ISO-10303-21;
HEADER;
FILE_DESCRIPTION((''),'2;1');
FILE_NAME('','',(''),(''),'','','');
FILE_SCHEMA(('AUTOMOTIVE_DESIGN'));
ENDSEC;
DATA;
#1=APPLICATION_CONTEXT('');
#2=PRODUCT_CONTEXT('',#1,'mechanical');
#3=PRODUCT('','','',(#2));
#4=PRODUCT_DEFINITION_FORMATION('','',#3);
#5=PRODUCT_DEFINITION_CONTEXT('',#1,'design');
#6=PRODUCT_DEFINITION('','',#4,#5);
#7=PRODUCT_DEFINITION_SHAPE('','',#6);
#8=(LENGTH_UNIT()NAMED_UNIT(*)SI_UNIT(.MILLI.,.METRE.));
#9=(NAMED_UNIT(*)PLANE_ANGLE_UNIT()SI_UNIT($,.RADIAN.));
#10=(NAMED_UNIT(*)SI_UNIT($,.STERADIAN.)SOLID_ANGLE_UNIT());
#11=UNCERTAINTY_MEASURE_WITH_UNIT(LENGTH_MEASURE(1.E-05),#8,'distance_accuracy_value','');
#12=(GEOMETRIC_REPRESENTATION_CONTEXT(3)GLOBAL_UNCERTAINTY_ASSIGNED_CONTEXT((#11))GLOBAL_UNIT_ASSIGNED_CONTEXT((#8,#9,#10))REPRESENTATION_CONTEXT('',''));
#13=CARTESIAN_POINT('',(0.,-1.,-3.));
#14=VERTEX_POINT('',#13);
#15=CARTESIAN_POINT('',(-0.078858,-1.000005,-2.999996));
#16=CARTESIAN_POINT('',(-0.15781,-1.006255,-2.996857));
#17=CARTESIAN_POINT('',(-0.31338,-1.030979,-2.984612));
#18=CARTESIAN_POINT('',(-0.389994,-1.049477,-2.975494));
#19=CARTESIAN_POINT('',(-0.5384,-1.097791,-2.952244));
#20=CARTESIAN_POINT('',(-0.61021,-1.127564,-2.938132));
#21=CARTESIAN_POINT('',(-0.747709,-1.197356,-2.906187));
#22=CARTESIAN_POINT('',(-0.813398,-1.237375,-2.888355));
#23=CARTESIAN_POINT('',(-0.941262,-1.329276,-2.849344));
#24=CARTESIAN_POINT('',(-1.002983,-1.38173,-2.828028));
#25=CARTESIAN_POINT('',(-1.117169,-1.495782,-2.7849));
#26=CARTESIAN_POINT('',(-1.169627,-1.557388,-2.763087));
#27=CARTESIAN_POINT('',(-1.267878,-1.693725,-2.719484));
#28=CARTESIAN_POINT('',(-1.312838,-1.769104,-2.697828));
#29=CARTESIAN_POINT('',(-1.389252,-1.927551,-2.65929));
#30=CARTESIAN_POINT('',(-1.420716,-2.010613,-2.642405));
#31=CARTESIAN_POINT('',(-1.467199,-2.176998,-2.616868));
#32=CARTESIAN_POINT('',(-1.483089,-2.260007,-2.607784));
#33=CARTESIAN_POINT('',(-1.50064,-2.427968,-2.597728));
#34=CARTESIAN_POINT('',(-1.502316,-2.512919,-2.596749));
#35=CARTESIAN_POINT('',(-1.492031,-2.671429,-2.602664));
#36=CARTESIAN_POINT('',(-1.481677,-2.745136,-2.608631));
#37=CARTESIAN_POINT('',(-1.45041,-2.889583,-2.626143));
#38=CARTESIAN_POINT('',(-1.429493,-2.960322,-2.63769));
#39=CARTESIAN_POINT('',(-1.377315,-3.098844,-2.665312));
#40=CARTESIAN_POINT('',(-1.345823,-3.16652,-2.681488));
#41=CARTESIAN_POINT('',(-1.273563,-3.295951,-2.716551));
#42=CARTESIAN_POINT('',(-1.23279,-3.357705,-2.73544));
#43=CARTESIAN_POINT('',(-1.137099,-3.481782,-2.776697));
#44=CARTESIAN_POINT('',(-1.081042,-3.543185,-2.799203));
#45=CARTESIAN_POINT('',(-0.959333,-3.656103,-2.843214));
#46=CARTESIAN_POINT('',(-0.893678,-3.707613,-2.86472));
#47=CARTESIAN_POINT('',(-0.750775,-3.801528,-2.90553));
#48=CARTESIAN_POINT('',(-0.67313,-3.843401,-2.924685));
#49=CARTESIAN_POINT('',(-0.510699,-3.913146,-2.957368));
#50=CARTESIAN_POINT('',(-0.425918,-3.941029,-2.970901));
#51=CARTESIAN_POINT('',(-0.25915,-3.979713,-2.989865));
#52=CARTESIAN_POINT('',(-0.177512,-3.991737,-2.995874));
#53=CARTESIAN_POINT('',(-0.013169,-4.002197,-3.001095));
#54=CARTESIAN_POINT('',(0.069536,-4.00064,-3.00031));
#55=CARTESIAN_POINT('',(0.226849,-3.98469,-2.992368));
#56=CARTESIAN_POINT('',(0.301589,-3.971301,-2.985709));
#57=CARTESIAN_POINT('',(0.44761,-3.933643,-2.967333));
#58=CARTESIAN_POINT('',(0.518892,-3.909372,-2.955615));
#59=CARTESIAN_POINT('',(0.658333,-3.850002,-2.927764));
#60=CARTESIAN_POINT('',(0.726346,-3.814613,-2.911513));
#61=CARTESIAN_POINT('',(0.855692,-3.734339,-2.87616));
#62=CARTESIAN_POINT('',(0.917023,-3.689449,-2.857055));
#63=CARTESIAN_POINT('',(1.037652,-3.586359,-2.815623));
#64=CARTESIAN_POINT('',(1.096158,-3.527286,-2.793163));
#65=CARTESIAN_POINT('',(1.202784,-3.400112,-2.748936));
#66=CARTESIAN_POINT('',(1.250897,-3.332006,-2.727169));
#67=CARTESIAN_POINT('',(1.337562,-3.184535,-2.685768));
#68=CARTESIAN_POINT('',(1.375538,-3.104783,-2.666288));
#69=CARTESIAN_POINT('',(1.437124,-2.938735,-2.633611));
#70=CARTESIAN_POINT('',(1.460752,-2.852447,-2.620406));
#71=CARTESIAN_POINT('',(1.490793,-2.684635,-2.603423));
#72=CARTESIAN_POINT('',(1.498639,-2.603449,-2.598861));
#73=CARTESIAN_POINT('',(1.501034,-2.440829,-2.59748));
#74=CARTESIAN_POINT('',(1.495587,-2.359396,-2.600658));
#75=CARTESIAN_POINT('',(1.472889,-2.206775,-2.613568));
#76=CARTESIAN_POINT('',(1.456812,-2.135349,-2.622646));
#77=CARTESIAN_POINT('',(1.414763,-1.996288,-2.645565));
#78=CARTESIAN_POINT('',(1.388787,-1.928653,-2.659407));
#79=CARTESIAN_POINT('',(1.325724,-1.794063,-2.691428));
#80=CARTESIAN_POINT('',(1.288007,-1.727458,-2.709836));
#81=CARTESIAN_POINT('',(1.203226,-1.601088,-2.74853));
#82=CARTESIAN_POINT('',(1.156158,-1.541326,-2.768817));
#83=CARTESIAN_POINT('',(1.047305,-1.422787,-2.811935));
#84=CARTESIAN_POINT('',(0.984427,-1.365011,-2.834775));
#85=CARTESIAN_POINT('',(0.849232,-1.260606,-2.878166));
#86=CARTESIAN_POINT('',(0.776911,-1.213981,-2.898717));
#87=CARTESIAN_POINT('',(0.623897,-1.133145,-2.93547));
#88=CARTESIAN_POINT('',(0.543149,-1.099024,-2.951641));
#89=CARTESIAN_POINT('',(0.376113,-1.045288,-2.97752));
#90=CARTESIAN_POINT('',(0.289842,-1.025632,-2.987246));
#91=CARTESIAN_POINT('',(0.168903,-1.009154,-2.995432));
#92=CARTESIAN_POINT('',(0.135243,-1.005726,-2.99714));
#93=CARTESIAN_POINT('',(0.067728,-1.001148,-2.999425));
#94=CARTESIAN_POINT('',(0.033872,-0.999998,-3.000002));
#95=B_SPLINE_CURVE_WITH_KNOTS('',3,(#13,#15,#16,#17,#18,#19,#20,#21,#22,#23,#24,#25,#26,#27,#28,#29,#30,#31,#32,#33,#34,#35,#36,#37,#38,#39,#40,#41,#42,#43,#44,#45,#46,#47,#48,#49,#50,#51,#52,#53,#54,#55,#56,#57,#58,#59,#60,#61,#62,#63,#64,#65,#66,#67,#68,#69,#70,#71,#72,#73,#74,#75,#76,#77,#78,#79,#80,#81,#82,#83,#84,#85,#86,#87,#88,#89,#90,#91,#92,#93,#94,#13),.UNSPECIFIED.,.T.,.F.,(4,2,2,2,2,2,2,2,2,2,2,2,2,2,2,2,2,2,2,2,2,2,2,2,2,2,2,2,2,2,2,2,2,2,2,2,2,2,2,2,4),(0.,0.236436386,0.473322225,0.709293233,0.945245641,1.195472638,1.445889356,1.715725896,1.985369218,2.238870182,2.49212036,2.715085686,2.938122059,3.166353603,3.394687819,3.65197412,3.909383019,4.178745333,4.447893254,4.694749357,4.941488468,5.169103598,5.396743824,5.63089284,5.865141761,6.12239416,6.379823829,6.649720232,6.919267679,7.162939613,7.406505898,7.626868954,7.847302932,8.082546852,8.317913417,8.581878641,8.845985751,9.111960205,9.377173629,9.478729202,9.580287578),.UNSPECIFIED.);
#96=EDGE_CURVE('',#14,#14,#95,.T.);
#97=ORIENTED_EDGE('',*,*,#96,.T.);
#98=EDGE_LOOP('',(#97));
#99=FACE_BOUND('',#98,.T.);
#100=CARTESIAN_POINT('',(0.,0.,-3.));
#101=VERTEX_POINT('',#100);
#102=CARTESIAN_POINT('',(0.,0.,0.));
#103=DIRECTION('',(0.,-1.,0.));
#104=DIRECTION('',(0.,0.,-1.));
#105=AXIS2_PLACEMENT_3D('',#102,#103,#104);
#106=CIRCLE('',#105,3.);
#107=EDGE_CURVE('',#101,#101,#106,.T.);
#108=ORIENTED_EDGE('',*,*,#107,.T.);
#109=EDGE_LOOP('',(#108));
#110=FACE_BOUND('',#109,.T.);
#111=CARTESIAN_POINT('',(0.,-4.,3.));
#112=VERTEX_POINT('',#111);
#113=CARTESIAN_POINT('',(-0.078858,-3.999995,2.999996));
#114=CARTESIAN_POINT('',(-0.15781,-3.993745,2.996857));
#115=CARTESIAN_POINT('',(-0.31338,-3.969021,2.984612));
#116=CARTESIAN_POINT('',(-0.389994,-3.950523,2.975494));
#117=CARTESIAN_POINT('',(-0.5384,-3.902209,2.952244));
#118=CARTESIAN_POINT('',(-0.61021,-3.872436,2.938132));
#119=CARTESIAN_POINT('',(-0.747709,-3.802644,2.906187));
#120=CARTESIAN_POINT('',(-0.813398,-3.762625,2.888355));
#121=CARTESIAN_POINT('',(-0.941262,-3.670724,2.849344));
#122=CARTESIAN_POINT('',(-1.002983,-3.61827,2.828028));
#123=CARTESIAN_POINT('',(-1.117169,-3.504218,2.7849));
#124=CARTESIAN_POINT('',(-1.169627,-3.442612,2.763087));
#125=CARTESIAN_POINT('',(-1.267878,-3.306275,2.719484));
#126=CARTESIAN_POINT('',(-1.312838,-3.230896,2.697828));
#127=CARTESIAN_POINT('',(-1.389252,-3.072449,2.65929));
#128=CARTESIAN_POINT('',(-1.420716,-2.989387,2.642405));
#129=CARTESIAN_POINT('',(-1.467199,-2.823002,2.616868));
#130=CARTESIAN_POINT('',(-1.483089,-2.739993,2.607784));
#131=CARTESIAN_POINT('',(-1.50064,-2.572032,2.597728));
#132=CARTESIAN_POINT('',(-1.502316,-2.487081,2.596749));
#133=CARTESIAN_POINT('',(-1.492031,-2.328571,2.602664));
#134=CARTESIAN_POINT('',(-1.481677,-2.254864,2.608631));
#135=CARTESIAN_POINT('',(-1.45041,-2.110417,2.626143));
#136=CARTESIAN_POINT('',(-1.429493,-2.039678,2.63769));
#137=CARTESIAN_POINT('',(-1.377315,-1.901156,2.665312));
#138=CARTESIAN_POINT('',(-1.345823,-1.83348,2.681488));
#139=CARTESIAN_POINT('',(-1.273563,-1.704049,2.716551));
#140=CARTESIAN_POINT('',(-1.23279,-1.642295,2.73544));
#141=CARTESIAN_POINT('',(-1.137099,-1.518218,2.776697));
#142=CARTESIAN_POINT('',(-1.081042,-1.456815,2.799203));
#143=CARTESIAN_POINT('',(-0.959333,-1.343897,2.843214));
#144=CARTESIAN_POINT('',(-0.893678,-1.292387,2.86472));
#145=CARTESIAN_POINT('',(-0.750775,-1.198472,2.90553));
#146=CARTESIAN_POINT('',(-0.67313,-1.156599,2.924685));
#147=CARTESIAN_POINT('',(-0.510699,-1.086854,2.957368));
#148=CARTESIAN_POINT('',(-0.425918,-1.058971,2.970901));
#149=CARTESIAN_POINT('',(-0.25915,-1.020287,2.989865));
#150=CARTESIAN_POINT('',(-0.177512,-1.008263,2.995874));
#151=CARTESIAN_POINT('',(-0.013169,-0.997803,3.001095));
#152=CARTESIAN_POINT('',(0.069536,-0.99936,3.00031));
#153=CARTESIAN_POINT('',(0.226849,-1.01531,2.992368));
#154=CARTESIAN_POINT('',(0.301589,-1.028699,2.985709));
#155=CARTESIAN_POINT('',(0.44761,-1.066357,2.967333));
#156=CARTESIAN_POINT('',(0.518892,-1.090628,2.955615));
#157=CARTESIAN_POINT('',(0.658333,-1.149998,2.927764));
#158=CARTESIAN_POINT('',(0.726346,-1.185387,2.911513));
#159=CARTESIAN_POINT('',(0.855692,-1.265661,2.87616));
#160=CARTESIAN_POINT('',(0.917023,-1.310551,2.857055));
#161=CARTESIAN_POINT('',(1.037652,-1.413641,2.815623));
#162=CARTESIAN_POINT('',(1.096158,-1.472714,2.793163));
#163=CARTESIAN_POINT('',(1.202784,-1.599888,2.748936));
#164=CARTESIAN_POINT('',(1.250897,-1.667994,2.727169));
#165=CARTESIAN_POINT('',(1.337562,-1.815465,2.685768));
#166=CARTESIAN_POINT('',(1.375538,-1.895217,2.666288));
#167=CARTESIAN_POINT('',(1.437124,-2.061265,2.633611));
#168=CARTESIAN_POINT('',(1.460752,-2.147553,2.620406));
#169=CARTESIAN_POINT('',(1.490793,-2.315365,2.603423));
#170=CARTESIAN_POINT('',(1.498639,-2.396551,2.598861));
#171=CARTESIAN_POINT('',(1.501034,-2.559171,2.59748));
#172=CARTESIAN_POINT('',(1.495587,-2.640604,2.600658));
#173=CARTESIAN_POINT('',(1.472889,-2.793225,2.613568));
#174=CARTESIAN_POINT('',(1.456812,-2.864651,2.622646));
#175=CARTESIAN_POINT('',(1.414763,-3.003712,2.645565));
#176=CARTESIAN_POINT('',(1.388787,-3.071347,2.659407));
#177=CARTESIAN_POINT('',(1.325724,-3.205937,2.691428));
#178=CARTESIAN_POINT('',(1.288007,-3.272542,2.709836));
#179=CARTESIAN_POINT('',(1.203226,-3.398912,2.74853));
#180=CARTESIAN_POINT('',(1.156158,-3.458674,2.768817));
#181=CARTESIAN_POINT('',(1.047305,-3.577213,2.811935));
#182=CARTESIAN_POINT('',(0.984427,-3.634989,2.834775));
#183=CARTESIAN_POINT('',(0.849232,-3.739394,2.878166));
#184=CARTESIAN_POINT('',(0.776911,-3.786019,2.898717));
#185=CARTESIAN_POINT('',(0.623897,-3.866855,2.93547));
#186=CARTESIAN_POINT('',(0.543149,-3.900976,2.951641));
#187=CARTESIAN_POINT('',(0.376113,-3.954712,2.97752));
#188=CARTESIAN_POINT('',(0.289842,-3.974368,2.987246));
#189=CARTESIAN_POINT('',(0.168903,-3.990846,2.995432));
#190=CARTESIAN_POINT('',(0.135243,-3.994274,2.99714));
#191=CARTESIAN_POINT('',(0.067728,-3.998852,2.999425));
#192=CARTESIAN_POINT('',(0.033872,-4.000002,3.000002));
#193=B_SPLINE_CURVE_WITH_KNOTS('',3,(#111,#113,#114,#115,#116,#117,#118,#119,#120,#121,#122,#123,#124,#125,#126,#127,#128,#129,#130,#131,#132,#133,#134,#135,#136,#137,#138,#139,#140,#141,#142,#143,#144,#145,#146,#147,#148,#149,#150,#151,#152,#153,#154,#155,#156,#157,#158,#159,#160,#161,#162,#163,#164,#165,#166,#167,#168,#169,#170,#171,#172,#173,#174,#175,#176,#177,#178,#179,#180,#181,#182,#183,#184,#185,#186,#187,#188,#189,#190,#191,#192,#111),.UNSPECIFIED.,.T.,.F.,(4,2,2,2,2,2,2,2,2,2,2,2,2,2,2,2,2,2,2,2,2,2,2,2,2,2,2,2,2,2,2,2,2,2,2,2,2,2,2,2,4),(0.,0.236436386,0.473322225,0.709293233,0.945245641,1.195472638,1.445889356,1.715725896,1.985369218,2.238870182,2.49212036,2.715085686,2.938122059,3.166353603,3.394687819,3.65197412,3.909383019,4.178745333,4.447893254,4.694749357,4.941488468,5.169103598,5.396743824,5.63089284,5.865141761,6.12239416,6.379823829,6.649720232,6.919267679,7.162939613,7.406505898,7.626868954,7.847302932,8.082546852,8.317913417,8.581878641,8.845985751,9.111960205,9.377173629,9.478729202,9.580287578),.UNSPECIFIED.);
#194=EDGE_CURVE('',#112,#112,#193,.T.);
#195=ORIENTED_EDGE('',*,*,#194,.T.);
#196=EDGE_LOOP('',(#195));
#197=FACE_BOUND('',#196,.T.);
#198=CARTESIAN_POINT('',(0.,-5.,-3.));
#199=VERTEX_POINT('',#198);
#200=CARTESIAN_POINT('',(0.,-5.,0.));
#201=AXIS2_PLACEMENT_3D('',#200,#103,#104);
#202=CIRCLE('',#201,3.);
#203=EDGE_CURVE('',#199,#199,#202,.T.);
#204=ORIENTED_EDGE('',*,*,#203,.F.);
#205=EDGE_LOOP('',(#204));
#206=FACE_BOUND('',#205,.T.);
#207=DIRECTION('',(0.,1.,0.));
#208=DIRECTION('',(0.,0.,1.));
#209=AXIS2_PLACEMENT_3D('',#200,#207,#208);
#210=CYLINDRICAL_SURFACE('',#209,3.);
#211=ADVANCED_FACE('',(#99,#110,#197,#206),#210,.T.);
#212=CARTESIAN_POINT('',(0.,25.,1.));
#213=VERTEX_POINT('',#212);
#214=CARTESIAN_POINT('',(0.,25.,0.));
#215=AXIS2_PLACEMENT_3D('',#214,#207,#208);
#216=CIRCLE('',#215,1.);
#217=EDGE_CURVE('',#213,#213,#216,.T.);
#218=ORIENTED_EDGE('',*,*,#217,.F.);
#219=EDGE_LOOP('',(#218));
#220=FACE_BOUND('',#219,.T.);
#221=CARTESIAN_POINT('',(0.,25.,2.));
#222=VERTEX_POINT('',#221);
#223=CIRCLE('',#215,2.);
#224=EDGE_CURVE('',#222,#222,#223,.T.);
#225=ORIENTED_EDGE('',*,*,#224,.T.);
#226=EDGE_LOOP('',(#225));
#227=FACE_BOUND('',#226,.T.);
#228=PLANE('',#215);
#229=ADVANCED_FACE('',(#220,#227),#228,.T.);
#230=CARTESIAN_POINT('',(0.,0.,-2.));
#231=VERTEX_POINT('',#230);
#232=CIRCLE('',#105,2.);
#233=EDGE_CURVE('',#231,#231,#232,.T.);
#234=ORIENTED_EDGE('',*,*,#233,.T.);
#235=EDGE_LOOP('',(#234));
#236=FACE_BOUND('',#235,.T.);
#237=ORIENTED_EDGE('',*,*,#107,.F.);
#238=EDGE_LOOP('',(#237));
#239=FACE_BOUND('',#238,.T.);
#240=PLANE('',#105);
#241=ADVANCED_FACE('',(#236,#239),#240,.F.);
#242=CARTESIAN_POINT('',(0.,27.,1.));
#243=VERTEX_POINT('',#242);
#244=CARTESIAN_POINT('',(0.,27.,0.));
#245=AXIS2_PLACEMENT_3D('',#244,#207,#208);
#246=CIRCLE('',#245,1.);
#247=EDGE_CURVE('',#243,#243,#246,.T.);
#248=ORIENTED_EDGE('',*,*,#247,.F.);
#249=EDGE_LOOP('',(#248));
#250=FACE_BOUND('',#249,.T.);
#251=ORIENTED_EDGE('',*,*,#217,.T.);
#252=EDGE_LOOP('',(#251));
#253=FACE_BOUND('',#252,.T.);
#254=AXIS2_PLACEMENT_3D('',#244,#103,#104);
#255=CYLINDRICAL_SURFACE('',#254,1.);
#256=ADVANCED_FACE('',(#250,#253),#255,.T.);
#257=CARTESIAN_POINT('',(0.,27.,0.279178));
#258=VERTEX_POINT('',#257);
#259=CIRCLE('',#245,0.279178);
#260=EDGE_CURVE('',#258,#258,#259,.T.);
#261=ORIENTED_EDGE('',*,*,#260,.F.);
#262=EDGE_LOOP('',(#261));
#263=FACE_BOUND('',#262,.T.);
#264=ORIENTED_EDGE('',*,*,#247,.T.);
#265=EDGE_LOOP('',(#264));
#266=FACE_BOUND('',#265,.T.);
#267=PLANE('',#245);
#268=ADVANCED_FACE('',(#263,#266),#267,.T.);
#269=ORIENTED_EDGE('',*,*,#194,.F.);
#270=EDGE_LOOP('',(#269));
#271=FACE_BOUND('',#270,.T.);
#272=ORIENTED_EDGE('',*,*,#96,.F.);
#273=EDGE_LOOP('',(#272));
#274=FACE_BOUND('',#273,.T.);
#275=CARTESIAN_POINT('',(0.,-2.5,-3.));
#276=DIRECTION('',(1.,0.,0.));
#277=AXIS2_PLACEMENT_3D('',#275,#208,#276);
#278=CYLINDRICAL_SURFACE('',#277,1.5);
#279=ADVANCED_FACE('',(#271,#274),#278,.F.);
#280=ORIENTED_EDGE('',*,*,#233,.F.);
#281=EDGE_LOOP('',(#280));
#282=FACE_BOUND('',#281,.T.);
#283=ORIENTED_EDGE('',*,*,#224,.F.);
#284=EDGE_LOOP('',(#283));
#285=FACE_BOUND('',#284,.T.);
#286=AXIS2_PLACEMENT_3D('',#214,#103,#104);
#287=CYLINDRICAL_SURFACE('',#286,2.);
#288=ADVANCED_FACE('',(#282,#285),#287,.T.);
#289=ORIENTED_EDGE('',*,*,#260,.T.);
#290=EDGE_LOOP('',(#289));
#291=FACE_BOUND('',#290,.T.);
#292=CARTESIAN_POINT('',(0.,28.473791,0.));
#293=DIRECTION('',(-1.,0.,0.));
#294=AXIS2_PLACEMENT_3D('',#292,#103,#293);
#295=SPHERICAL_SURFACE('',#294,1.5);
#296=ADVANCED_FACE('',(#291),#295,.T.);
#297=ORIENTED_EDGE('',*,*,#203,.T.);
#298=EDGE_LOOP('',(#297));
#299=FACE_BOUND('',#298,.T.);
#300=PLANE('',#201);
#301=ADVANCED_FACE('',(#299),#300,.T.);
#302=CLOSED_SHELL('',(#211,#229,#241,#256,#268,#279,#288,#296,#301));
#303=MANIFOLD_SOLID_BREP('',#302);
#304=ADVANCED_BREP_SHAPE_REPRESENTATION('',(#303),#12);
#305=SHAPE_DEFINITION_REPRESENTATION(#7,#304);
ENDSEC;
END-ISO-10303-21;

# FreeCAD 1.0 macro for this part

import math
import FreeCAD as App
import Part
import Sketcher

V = App.Vector

doc = App.newDocument("Part")
body = doc.addObject("PartDesign::Body", "Body")

# Sketch on XZ plane
sketch1 = doc.addObject("Sketcher::SketchObject", "Sketch")
body.addObject(sketch1)
sketch1.AttachmentSupport = (doc.XZ_Plane, [""])
sketch1.MapMode = "FlatFace"
sketch1.addGeometry(Part.Circle(V(0, 0, 0), V(0, 0, 1), 2), False)
sketch1.addConstraint([
    Sketcher.Constraint("Coincident", 0, 3, -1, 1),
    Sketcher.Constraint("Diameter", 0, 4.0),
])
pad1 = doc.addObject("PartDesign::Pad", "Pad")
body.addObject(pad1)
pad1.Profile = sketch1
pad1.Length = 25
pad1.Reversed = True

# Sketch on XZ plane
sketch2 = doc.addObject("Sketcher::SketchObject", "Sketch001")
body.addObject(sketch2)
sketch2.AttachmentSupport = (doc.XZ_Plane, [""])
sketch2.MapMode = "FlatFace"
sketch2.AttachmentOffset = App.Placement(V(0, 0, -25), App.Rotation())
sketch2.addGeometry(Part.Circle(V(0, 0, 0), V(0, 0, 1), 1), False)
sketch2.addConstraint([
    Sketcher.Constraint("Coincident", 0, 3, -1, 1),
    Sketcher.Constraint("Diameter", 0, 2.0),
])
pad2 = doc.addObject("PartDesign::Pad", "Pad001")
body.addObject(pad2)
pad2.Profile = sketch2
pad2.Length = 2
pad2.Reversed = True

# Sketch on XY plane
sketch3 = doc.addObject("Sketcher::SketchObject", "Sketch002")
body.addObject(sketch3)
sketch3.AttachmentSupport = (doc.XY_Plane, [""])
sketch3.MapMode = "FlatFace"
sketch3.addGeometry([
    Part.LineSegment(V(0, 30, 0), V(0, 27, 0)),
    Part.ArcOfCircle(Part.Circle(V(0, 28.5, 0), V(0, 0, 1), 1.5), math.radians(-90), math.radians(90)),
], False)
sketch3.addConstraint([
    Sketcher.Constraint("Coincident", 0, 1, 1, 2),
    Sketcher.Constraint("Coincident", 1, 1, 0, 2),
    Sketcher.Constraint("Vertical", 0),
    Sketcher.Constraint("PointOnObject", 1, 3, -2),
    Sketcher.Constraint("PointOnObject", 0, 1, -2),
    Sketcher.Constraint("Radius", 1, 1.5),
    Sketcher.Constraint("DistanceY", -1, 1, 1, 3, 28.473791),
])
revolution = doc.addObject("PartDesign::Revolution", "Revolution")
body.addObject(revolution)
revolution.Profile = sketch3
revolution.ReferenceAxis = (sketch3, ["V_Axis"])
revolution.Angle = 360

# Sketch on XZ plane
sketch4 = doc.addObject("Sketcher::SketchObject", "Sketch003")
body.addObject(sketch4)
sketch4.AttachmentSupport = (doc.XZ_Plane, [""])
sketch4.MapMode = "FlatFace"
sketch4.addGeometry(Part.Circle(V(0, 0, 0), V(0, 0, 1), 3), False)
sketch4.addConstraint([
    Sketcher.Constraint("Coincident", 0, 3, -1, 1),
    Sketcher.Constraint("Diameter", 0, 6.0),
])
pad3 = doc.addObject("PartDesign::Pad", "Pad002")
body.addObject(pad3)
pad3.Profile = sketch4
pad3.Length = 5

# Sketch on XY plane
sketch5 = doc.addObject("Sketcher::SketchObject", "Sketch004")
body.addObject(sketch5)
sketch5.AttachmentSupport = (doc.XY_Plane, [""])
sketch5.MapMode = "FlatFace"
sketch5.addGeometry(Part.Circle(V(0, -2.5, 0), V(0, 0, 1), 1.5), False)
sketch5.addConstraint([
    Sketcher.Constraint("PointOnObject", 0, 3, -2),
    Sketcher.Constraint("Diameter", 0, 3.0),
    Sketcher.Constraint("DistanceY", 0, 3, -1, 1, 2.5),
])
pocket1 = doc.addObject("PartDesign::Pocket", "Pocket")
body.addObject(pocket1)
pocket1.Profile = sketch5
pocket1.Type = "ThroughAll"
pocket1.Midplane = True

doc.recompute()
